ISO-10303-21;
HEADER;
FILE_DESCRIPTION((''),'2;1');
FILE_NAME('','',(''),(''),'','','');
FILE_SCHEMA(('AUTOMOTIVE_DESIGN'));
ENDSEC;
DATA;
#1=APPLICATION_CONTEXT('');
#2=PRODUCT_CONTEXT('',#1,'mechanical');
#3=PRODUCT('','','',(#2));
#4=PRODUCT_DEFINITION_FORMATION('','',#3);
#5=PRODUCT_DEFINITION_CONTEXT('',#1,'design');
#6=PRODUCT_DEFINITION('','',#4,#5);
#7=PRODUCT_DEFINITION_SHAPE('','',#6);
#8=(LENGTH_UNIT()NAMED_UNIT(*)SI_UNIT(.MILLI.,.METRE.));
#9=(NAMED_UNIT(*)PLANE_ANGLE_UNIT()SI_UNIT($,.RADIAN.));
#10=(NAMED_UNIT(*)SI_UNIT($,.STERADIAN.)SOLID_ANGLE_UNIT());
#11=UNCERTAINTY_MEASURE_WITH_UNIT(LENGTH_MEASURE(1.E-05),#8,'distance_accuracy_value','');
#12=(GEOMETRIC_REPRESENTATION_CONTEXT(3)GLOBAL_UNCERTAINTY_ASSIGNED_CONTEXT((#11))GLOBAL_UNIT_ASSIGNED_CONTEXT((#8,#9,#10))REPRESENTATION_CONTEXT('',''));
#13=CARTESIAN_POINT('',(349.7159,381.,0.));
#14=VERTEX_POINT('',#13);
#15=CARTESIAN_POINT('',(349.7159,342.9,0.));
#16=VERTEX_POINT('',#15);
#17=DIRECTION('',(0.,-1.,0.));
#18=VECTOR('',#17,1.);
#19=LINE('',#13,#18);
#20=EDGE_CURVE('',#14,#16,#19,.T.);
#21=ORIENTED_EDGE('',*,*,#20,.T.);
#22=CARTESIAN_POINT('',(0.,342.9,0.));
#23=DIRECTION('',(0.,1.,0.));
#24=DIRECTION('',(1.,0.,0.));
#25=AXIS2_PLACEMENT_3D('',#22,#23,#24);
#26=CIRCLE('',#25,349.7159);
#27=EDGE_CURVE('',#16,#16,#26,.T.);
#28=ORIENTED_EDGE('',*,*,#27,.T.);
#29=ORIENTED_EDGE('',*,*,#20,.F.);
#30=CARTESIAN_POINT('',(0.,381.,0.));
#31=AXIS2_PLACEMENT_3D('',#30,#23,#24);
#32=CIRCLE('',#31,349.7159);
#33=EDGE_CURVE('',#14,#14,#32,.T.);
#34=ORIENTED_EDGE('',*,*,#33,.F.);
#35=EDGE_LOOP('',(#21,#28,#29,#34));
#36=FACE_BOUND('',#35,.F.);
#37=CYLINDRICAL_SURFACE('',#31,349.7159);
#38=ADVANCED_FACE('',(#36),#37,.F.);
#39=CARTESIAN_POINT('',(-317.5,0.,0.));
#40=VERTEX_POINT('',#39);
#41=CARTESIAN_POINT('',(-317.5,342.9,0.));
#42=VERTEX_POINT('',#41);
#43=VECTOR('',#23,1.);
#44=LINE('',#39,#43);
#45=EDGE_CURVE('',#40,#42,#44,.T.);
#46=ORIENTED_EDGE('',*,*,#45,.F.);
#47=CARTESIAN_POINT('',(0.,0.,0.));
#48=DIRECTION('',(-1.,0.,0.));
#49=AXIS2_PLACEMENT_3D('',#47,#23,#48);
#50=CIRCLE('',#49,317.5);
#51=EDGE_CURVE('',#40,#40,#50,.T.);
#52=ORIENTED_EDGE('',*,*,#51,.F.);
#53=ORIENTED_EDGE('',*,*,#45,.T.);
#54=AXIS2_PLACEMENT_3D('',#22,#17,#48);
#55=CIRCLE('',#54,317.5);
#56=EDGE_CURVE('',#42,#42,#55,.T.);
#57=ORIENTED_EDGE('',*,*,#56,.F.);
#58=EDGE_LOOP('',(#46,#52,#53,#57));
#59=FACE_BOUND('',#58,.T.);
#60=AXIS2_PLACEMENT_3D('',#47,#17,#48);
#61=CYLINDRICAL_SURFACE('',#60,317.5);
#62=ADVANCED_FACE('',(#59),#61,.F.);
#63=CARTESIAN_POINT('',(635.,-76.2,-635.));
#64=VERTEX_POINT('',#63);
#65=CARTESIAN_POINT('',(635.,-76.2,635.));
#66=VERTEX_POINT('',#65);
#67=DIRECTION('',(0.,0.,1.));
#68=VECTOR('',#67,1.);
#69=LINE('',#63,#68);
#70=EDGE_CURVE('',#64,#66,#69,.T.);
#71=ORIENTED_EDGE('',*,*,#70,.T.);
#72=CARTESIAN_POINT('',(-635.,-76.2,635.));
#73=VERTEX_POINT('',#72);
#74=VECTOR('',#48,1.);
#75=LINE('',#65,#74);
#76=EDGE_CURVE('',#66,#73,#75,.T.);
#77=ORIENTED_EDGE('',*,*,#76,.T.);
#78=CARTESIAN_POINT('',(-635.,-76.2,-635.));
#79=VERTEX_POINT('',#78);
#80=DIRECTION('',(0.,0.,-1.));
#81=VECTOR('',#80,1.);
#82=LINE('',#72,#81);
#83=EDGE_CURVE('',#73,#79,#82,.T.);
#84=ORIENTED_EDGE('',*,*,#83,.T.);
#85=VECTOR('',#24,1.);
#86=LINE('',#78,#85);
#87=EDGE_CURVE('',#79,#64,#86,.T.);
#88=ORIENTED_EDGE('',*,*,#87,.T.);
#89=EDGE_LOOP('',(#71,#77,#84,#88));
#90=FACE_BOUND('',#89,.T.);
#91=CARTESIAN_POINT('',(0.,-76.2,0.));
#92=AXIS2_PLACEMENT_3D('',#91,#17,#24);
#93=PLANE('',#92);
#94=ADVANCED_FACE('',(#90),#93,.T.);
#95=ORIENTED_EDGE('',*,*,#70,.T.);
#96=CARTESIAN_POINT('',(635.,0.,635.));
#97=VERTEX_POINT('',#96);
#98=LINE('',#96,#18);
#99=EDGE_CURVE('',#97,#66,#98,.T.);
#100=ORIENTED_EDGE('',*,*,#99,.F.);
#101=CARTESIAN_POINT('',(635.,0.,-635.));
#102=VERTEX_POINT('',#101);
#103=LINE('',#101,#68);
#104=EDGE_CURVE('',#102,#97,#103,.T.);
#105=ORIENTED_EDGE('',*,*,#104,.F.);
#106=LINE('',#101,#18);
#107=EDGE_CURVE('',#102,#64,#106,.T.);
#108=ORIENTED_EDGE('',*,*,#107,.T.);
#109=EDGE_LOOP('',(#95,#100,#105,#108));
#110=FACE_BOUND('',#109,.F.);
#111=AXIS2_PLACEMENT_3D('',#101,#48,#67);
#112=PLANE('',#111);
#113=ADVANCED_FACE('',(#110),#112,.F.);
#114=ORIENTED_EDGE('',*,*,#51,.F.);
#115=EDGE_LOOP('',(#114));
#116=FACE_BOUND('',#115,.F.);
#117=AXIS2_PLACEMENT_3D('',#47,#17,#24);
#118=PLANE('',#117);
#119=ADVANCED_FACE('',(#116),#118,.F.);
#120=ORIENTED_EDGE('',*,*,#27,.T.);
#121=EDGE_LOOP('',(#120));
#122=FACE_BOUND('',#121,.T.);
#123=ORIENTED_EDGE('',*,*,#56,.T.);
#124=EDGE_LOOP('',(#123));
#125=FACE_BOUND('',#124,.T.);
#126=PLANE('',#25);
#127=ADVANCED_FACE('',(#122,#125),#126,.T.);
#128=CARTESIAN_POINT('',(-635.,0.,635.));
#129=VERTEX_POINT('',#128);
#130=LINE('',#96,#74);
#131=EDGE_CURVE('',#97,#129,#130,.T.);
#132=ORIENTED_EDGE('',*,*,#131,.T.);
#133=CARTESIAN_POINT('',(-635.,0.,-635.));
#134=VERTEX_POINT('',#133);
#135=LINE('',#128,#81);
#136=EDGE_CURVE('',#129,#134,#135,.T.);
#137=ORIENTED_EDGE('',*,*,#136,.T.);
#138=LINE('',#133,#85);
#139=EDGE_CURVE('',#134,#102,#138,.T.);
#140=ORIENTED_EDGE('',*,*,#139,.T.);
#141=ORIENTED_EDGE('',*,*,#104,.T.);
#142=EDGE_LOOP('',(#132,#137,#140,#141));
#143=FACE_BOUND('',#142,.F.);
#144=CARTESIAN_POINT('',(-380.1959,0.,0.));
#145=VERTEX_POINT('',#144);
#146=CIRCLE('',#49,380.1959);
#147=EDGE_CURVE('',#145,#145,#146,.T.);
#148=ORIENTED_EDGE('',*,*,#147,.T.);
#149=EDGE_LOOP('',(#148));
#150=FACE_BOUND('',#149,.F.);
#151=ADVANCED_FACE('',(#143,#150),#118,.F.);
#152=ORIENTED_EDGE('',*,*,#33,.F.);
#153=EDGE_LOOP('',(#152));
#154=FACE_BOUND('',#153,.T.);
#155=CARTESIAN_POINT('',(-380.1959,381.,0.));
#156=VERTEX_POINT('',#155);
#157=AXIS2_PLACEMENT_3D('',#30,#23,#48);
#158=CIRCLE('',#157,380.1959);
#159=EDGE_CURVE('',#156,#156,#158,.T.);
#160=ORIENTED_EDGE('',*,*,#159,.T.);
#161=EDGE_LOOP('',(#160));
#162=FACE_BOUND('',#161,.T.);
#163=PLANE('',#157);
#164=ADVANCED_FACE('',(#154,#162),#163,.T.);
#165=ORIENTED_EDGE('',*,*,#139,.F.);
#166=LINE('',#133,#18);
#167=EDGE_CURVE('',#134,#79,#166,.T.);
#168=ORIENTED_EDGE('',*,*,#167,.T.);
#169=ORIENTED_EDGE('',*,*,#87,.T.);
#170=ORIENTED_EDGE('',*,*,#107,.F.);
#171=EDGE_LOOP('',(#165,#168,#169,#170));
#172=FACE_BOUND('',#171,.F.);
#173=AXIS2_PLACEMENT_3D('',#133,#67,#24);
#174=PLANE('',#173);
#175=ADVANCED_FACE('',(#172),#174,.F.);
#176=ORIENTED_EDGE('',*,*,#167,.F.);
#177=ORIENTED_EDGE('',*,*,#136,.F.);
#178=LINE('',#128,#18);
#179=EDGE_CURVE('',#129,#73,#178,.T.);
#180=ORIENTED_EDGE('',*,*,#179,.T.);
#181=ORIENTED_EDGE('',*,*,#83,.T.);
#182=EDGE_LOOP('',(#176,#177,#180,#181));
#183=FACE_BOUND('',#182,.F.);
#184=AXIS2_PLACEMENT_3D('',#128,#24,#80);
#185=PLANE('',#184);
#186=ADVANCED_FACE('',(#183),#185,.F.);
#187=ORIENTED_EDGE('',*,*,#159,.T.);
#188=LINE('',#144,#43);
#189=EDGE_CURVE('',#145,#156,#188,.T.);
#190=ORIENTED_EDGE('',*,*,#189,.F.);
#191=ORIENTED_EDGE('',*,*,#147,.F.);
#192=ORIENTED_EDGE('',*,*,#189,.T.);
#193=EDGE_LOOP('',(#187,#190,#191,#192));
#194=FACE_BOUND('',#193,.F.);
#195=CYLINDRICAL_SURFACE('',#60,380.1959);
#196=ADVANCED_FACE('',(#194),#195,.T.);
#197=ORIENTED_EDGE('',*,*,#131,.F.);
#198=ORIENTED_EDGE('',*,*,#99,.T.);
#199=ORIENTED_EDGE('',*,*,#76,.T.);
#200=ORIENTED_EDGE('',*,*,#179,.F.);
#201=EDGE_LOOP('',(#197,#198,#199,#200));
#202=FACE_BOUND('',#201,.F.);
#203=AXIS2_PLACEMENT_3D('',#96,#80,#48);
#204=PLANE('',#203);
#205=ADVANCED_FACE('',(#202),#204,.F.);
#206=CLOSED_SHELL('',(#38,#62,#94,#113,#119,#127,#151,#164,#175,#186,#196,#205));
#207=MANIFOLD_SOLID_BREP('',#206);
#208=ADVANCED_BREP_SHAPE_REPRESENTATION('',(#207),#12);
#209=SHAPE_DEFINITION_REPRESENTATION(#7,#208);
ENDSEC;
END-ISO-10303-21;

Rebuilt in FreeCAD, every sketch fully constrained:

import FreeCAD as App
import Part
import Sketcher
from FreeCAD import Vector
Q = App.Units.Quantity

doc = App.newDocument("Part")
params = doc.addObject("Spreadsheet::Sheet", "Params")
for row, (alias, value) in enumerate([
    ("sketch1_diameter", "25 in"),
    ("pad1_length", "15 in"),
    ("pad2_length", "3 in"),
    ("pocket1_length", "1.5 in"),
], start=1):
    params.set(f"A{row}", alias)
    params.set(f"B{row}", "=" + value)
    params.setAlias(f"B{row}", alias)

body = doc.addObject("PartDesign::Body", "Body")

# Sketch on XZ plane
sketch1 = doc.addObject("Sketcher::SketchObject", "Sketch")
body.addObject(sketch1)
sketch1.AttachmentSupport = (doc.XZ_Plane, [""])
sketch1.MapMode = "FlatFace"
sketch1.addGeometry(Part.Circle(Vector(0, 0, 0), Vector(0, 0, 1), 380), False)
sketch1.addGeometry(Part.Circle(Vector(0, 0, 0), Vector(0, 0, 1), 318), False)
sketch1.addConstraint(Sketcher.Constraint("Coincident", 0, 3, -1, 1))
sketch1.addConstraint(Sketcher.Constraint("Coincident", 1, 3, -1, 1))
sketch1.addConstraint(Sketcher.Constraint("Diameter", 1, Q("25 in")))
sketch1.addConstraint(Sketcher.Constraint("Diameter", 0, Q("760.3918 mm")))
sketch1.setExpression("Constraints[2]", "Params.sketch1_diameter")
pad1 = doc.addObject("PartDesign::Pad", "Pad")
body.addObject(pad1)
pad1.Profile = sketch1
pad1.setExpression("Length", "Params.pad1_length")
pad1.Reversed = True

# Sketch on XZ plane
sketch2 = doc.addObject("Sketcher::SketchObject", "Sketch001")
body.addObject(sketch2)
sketch2.AttachmentSupport = (doc.XZ_Plane, [""])
sketch2.MapMode = "FlatFace"
sketch2.addGeometry(Part.LineSegment(Vector(635, -635, 0), Vector(635, 635, 0)), False)
sketch2.addGeometry(Part.LineSegment(Vector(635, 635, 0), Vector(-635, 635, 0)), False)
sketch2.addGeometry(Part.LineSegment(Vector(-635, 635, 0), Vector(-635, -635, 0)), False)
sketch2.addGeometry(Part.LineSegment(Vector(-635, -635, 0), Vector(635, -635, 0)), False)
sketch2.addConstraint(Sketcher.Constraint("Coincident", 0, 2, 1, 1))
sketch2.addConstraint(Sketcher.Constraint("Coincident", 1, 2, 2, 1))
sketch2.addConstraint(Sketcher.Constraint("Coincident", 2, 2, 3, 1))
sketch2.addConstraint(Sketcher.Constraint("Coincident", 3, 2, 0, 1))
sketch2.addConstraint(Sketcher.Constraint("Vertical", 0))
sketch2.addConstraint(Sketcher.Constraint("Horizontal", 1))
sketch2.addConstraint(Sketcher.Constraint("Vertical", 2))
sketch2.addConstraint(Sketcher.Constraint("Horizontal", 3))
sketch2.addConstraint(Sketcher.Constraint("Symmetric", 0, 2, 2, 2, -1, 1))
sketch2.addConstraint(Sketcher.Constraint("Equal", 3, 0))
sketch2.addConstraint(Sketcher.Constraint("DistanceX", -1, 1, 0, 2, Q("25 in")))
pad2 = doc.addObject("PartDesign::Pad", "Pad001")
body.addObject(pad2)
pad2.Profile = sketch2
pad2.setExpression("Length", "Params.pad2_length")

# Sketch on XZ plane
sketch3 = doc.addObject("Sketcher::SketchObject", "Sketch002")
body.addObject(sketch3)
sketch3.AttachmentSupport = (doc.XZ_Plane, [""])
sketch3.MapMode = "FlatFace"
sketch3.AttachmentOffset = App.Placement(Vector(0, 0, -15 * 25.4), App.Rotation())
sketch3.addGeometry(Part.Circle(Vector(0, 0, 0), Vector(0, 0, 1), 350), False)
sketch3.addConstraint(Sketcher.Constraint("Coincident", 0, 3, -1, 1))
sketch3.addConstraint(Sketcher.Constraint("Diameter", 0, Q("699.4318 mm")))
pocket1 = doc.addObject("PartDesign::Pocket", "Pocket")
body.addObject(pocket1)
pocket1.Profile = sketch3
pocket1.setExpression("Length", "Params.pocket1_length")
pocket1.Reversed = True

doc.recompute()
